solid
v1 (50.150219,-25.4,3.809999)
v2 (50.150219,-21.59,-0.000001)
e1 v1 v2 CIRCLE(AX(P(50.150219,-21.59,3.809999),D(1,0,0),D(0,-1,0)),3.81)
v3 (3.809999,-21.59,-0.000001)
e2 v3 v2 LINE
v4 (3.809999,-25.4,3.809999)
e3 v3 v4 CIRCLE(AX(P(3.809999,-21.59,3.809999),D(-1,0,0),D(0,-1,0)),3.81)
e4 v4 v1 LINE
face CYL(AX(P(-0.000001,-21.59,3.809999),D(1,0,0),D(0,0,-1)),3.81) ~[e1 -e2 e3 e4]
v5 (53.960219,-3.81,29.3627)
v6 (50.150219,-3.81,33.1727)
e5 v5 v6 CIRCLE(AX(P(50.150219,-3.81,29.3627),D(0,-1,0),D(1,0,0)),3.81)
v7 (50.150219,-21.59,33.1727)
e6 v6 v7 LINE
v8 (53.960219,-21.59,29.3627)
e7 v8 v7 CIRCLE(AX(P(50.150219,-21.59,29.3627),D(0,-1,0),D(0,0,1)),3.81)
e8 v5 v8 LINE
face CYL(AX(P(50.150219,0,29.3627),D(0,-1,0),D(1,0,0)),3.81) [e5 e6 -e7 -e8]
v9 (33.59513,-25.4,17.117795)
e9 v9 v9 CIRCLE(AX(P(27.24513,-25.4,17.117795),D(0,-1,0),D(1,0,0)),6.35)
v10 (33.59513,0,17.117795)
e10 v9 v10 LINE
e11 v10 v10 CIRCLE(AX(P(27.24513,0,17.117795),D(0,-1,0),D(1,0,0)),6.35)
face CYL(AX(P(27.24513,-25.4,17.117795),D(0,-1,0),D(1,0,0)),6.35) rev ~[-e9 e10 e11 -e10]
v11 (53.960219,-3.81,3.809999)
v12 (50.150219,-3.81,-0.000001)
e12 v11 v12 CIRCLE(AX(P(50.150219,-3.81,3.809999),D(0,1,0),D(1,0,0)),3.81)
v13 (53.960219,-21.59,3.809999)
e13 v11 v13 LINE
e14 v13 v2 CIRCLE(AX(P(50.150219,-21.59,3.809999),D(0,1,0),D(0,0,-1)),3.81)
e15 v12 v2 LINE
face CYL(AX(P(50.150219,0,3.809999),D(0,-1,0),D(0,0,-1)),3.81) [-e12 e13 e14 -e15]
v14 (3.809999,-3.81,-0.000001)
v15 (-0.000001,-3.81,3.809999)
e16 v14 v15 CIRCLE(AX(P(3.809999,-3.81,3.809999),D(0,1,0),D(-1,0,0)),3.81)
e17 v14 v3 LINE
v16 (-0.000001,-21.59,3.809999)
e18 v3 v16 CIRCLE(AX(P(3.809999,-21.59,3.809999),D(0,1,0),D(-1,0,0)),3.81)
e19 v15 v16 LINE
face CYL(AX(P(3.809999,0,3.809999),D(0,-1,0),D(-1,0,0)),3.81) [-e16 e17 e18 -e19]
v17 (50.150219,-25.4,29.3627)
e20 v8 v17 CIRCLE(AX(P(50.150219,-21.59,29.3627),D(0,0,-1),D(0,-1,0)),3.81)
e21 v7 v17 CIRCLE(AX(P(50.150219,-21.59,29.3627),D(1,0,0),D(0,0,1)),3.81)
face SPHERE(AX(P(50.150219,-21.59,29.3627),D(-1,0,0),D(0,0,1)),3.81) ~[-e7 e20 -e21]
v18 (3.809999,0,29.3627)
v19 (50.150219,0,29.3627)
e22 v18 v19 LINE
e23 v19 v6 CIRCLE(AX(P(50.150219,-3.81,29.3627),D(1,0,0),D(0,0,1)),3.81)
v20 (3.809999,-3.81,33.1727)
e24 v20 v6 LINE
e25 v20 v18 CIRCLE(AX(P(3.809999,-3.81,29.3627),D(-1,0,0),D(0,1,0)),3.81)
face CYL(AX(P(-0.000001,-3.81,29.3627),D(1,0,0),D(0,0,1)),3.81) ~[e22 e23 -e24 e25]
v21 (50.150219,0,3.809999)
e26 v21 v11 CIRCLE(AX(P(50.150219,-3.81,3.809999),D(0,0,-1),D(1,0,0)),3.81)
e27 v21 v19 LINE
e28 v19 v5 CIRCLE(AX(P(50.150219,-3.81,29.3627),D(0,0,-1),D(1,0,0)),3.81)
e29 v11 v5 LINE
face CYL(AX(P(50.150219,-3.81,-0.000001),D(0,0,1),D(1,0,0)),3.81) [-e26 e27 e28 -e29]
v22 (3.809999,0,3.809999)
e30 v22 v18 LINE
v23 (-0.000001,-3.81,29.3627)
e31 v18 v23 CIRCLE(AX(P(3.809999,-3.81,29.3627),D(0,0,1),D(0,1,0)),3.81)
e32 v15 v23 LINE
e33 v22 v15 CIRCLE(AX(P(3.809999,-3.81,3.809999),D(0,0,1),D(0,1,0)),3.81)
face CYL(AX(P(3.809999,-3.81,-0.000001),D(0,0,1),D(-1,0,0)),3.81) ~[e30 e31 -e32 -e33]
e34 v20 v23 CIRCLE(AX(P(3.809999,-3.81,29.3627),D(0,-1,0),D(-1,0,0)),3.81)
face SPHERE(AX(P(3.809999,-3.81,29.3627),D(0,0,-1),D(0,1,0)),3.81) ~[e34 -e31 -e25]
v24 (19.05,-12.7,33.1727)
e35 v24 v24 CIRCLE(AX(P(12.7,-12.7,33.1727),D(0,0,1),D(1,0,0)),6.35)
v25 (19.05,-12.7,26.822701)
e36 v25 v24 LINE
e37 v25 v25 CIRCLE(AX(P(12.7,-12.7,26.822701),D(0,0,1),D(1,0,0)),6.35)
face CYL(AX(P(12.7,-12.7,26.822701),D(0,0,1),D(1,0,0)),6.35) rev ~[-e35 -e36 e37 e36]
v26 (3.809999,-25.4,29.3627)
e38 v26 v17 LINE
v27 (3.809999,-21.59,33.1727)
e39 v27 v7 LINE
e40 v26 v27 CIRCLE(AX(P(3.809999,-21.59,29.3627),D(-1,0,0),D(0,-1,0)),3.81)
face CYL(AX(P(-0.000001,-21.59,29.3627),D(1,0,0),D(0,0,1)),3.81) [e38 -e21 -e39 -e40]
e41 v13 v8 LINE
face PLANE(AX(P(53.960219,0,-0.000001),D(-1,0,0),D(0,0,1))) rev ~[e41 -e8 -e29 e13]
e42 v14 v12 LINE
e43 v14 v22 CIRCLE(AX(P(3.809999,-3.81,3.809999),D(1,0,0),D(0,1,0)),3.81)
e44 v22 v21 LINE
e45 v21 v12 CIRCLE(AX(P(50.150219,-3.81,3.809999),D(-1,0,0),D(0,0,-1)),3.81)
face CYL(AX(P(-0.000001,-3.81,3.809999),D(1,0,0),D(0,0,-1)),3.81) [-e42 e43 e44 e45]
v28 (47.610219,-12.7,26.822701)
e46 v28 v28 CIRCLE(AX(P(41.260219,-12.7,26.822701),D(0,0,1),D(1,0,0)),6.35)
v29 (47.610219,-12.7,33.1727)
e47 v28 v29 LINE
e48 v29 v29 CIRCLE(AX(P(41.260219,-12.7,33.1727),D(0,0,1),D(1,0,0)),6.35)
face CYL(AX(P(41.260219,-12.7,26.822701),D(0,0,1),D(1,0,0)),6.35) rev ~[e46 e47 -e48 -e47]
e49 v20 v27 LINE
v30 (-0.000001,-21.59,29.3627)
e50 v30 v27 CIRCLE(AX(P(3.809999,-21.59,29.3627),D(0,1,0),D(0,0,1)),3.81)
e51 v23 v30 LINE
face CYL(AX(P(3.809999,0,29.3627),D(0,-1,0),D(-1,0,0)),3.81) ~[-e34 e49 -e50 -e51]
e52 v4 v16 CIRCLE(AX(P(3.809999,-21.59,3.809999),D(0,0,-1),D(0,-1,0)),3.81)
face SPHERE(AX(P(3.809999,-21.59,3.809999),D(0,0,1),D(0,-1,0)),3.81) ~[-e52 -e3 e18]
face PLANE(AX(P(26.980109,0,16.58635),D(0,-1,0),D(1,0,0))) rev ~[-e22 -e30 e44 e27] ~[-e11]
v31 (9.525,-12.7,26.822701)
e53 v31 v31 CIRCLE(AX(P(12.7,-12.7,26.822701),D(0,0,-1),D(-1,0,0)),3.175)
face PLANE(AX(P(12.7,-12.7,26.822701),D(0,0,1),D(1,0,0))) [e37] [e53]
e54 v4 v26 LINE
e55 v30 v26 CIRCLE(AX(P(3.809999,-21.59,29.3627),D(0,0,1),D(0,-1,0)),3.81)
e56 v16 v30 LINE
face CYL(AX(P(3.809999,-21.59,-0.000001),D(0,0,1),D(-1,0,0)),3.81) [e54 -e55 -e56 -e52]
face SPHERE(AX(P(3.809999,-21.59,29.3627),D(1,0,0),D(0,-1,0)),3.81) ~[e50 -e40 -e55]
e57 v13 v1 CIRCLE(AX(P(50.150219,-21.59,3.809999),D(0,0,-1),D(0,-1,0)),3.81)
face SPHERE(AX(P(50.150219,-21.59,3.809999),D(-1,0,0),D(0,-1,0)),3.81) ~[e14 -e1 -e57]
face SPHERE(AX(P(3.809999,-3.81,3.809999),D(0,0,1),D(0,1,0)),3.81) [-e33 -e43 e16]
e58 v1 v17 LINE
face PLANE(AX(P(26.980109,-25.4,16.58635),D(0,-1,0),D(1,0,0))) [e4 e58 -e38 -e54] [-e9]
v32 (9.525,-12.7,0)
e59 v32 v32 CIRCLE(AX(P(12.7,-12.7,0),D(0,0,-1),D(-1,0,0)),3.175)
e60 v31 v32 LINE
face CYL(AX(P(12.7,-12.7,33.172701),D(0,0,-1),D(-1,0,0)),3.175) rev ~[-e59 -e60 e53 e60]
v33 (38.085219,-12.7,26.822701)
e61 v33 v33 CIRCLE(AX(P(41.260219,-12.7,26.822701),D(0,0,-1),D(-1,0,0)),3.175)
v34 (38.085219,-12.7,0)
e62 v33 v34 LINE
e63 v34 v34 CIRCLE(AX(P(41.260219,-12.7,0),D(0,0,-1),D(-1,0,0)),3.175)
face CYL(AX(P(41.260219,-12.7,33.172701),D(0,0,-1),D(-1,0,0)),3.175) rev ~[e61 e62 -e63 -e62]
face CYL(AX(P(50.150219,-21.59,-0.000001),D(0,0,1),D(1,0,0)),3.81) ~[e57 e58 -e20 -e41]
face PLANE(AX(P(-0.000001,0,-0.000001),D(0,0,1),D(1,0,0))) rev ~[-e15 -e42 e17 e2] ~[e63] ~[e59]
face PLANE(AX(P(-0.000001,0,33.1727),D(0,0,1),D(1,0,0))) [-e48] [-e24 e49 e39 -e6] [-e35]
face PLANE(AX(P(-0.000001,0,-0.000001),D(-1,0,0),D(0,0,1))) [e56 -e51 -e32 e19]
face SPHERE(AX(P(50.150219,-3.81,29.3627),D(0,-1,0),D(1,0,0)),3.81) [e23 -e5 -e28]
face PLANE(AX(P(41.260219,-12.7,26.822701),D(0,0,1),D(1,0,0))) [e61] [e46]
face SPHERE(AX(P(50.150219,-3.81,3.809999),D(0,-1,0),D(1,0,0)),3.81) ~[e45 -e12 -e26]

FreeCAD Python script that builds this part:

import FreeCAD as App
import Part
import Sketcher
Q = App.Units.Quantity


def add_polygon(sketch, points):
    """Adds a closed chain of lines whose ends are joined by coincident constraints."""
    first, n = sketch.GeometryCount, len(points)
    for a, b in zip(points, points[1:] + points[:1]):
        sketch.addGeometry(Part.LineSegment(App.Vector(*a, 0), App.Vector(*b, 0)), False)
    for i in range(n):
        sketch.addConstraint(Sketcher.Constraint("Coincident", first + i, 2, first + (i + 1) % n, 1))

doc = App.newDocument("Part")
body = doc.addObject("PartDesign::Body", "Body")

# Sketch on XZ plane
sketch1 = body.newObject("Sketcher::SketchObject", "Sketch")
sketch1.AttachmentSupport = (doc.getObject("XZ_Plane"), [""])
sketch1.MapMode = "FlatFace"
add_polygon(sketch1, [(0, 33), (0, 0), (54, 0), (54, 33)])  # lines 0-3
sketch1.addConstraint([
    Sketcher.Constraint("Vertical", 0),
    Sketcher.Constraint("Horizontal", 1),
    Sketcher.Constraint("Vertical", 2),
    Sketcher.Constraint("Horizontal", 3),
    Sketcher.Constraint("Coincident", 0, 2, -1, 1),
    Sketcher.Constraint("DistanceY", 0, 2, 0, 1, Q("33.172701 mm")),
    Sketcher.Constraint("DistanceX", 1, 1, 1, 2, Q("53.960219 mm")),
])
pad1 = body.newObject("PartDesign::Pad", "Pad")
pad1.Profile = sketch1
pad1.Length = Q("1 in")
doc.recompute()

fillet = body.newObject("PartDesign::Fillet", "Fillet")
fillet.Base = (pad1, ["Edge1"])
fillet.UseAllEdges = True
fillet.Radius = Q("0.15 in")

# Sketch on XZ plane
sketch2 = body.newObject("Sketcher::SketchObject", "Sketch001")
sketch2.AttachmentSupport = (doc.getObject("XZ_Plane"), [""])
sketch2.MapMode = "FlatFace"
sketch2.AttachmentOffset = App.Placement(App.Vector(0, 0, 1 * 25.4), App.Rotation())
sketch2.addGeometry(Part.Circle(App.Vector(27, 17, 0), App.Vector(0, 0, 1), 6), False)
sketch2.addConstraint([
    Sketcher.Constraint("Diameter", 0, Q("0.5 in")),
    Sketcher.Constraint("DistanceX", -1, 1, 0, 3, Q("27.24513 mm")),
    Sketcher.Constraint("DistanceY", -1, 1, 0, 3, Q("17.117795 mm")),
])
pocket1 = body.newObject("PartDesign::Pocket", "Pocket")
pocket1.Profile = sketch2
pocket1.Type = "ThroughAll"

# Sketch on XY plane
sketch3 = body.newObject("Sketcher::SketchObject", "Sketch002")
sketch3.AttachmentSupport = (doc.getObject("XY_Plane"), [""])
sketch3.MapMode = "FlatFace"
sketch3.AttachmentOffset = App.Placement(App.Vector(0, 0, 33.172701), App.Rotation())
sketch3.addGeometry([
    Part.Circle(App.Vector(12.7, -12.7, 0), App.Vector(0, 0, 1), 3.2),
    Part.Circle(App.Vector(41.3, -12.7, 0), App.Vector(0, 0, 1), 3.2),
], False)
sketch3.addConstraint([
    Sketcher.Constraint("Equal", 0, 1),
    Sketcher.Constraint("Horizontal", 0, 3, 1, 3),
    Sketcher.Constraint("Diameter", 0, Q("0.25 in")),
    Sketcher.Constraint("DistanceX", -1, 1, 0, 3, Q("0.5 in")),
    Sketcher.Constraint("DistanceY", 0, 3, -1, 1, Q("0.5 in")),
    Sketcher.Constraint("DistanceX", -1, 1, 1, 3, Q("41.260219 mm")),
])
doc.recompute()
hole = body.newObject("PartDesign::Hole", "Hole")
hole.Profile = sketch3
hole.ThreadType = "None"
hole.Diameter = Q("0.25 in")
hole.DepthType = "ThroughAll"
hole.HoleCutType = "Counterbore"
hole.HoleCutDiameter = Q("0.5 in")
hole.HoleCutDepth = Q("0.25 in")

doc.recompute()
